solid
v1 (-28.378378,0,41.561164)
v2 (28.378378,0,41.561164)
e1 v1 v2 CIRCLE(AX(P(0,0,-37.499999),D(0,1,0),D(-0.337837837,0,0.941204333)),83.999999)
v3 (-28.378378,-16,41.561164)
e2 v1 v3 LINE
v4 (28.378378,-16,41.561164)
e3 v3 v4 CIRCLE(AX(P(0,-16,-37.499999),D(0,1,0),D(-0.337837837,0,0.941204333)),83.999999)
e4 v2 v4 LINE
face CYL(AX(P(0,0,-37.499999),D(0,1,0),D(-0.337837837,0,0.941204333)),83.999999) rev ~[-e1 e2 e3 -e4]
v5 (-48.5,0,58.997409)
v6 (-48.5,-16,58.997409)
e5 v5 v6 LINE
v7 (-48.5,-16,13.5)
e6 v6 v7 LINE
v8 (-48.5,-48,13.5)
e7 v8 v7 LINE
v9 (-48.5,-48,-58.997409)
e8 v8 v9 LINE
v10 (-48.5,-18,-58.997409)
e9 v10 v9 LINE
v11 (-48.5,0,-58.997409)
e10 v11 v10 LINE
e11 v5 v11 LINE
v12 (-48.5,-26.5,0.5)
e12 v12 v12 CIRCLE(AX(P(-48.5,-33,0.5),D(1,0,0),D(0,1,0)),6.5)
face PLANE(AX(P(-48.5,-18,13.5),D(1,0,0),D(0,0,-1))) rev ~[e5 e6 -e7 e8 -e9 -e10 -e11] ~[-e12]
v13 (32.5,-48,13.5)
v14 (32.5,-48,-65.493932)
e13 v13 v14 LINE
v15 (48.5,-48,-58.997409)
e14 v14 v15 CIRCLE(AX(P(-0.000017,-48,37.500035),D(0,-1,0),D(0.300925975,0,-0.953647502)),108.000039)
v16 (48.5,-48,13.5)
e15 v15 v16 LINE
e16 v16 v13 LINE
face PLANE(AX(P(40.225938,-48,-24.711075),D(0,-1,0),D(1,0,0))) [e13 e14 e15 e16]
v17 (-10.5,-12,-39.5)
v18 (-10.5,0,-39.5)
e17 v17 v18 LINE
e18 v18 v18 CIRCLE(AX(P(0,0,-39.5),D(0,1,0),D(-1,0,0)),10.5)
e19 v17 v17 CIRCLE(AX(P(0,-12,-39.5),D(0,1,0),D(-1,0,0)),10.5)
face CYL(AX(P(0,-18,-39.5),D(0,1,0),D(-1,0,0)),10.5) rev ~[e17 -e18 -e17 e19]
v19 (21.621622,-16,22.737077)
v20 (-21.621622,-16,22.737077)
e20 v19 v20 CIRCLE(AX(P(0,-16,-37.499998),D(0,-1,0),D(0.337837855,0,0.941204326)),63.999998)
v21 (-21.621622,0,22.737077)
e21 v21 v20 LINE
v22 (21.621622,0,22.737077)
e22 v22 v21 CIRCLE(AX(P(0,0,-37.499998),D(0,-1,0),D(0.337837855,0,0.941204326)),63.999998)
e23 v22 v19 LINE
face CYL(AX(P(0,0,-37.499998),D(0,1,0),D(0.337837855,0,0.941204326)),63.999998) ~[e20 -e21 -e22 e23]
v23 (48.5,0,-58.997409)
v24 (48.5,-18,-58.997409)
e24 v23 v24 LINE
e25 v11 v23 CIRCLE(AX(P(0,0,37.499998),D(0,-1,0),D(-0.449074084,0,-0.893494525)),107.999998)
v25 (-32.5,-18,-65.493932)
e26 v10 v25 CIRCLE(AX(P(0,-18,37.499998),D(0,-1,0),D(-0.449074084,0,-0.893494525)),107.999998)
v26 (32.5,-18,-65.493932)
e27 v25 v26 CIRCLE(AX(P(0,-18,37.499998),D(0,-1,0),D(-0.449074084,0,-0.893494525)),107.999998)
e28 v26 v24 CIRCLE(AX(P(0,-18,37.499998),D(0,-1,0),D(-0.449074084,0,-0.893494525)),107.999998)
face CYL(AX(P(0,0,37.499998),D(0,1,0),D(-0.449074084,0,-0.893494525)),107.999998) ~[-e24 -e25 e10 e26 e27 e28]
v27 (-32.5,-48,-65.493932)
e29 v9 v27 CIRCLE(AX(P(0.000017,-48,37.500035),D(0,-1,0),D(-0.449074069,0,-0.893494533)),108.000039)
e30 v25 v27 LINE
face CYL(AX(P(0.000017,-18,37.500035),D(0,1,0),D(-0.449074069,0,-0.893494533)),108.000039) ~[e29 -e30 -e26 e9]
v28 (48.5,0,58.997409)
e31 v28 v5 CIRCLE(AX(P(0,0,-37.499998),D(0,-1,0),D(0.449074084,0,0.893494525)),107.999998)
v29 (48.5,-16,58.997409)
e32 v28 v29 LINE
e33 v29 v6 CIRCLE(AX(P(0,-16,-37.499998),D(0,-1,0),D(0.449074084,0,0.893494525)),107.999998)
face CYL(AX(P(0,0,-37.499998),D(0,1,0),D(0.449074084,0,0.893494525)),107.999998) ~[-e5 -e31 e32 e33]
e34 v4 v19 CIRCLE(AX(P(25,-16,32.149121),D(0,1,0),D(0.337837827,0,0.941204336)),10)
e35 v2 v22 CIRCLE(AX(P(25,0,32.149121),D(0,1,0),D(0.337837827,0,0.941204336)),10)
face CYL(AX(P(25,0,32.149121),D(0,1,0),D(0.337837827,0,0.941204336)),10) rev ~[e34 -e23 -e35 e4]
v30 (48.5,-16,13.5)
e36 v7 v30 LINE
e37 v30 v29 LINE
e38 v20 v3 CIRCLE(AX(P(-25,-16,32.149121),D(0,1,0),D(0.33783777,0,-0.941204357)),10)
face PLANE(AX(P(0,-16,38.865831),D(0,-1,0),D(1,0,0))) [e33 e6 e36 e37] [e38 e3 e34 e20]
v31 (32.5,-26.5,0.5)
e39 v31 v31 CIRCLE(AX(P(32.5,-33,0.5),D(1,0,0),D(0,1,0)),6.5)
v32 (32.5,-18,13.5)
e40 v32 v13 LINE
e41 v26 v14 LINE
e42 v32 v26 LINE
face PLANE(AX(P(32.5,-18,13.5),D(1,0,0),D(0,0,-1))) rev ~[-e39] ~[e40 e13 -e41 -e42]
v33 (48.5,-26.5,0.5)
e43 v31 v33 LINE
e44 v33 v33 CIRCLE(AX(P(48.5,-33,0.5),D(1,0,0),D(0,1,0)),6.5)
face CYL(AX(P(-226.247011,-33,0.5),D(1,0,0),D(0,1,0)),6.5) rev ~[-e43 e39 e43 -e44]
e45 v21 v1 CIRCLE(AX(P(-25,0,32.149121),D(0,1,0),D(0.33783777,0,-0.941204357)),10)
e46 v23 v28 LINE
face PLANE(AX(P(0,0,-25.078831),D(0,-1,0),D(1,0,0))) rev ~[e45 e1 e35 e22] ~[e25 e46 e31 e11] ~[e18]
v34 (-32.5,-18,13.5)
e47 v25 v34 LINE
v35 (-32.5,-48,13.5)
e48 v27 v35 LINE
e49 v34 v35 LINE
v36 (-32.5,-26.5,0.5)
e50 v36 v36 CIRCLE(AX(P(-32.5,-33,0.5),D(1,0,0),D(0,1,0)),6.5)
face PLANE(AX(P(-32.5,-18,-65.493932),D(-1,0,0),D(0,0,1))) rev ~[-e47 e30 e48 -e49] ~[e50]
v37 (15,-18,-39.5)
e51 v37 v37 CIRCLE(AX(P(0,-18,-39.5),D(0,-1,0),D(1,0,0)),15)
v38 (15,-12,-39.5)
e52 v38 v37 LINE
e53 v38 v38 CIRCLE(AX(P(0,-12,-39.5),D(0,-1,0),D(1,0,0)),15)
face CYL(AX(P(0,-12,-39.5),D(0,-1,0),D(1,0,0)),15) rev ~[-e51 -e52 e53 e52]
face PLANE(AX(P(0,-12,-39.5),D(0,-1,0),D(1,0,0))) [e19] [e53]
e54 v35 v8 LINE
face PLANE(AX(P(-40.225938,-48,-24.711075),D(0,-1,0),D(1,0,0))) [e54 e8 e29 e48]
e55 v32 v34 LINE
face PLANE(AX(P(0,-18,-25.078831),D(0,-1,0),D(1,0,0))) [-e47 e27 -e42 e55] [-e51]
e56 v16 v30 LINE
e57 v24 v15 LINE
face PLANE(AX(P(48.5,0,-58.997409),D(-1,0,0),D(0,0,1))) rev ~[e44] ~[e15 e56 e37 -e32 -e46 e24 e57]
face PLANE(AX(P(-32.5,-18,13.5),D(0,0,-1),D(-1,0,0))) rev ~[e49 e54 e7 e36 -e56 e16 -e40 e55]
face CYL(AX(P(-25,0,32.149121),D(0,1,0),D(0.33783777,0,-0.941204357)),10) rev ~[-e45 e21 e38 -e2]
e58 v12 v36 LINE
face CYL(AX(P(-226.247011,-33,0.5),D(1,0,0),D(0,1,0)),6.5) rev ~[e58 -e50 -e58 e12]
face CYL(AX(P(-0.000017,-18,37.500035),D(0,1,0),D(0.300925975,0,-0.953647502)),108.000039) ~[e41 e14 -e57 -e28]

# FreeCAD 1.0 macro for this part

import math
import FreeCAD as App
import Part
import Sketcher
from FreeCAD import Vector
Q = App.Units.Quantity

doc = App.newDocument("Part")
body = doc.addObject("PartDesign::Body", "Body")

# Sketch on XZ plane
sketch1 = body.newObject("Sketcher::SketchObject", "Sketch")
sketch1.AttachmentSupport = (doc.getObject("XZ_Plane"), [""])
sketch1.MapMode = "FlatFace"
sketch1.addGeometry(Part.LineSegment(Vector(-48, 14, 0), Vector(48, 14, 0)), False)
sketch1.addGeometry(Part.LineSegment(Vector(48, 14, 0), Vector(48, 59, 0)), False)
sketch1.addGeometry(Part.ArcOfCircle(Part.Circle(Vector(0, -37, 0), Vector(0, 0, 1), 108), math.radians(63), math.radians(117)), False)
sketch1.addGeometry(Part.LineSegment(Vector(-48, 59, 0), Vector(-48, 14, 0)), False)
sketch1.addGeometry(Part.ArcOfCircle(Part.Circle(Vector(-25, 32, 0), Vector(0, 0, 1), 10), math.radians(110), math.radians(290)), False)
sketch1.addGeometry(Part.ArcOfCircle(Part.Circle(Vector(0, -37, 0), Vector(0, 0, 1), 84), math.radians(70), math.radians(110)), False)
sketch1.addGeometry(Part.ArcOfCircle(Part.Circle(Vector(25, 32, 0), Vector(0, 0, 1), 10), math.radians(-110), math.radians(70)), False)
sketch1.addGeometry(Part.ArcOfCircle(Part.Circle(Vector(0, -37, 0), Vector(0, 0, 1), 64), math.radians(70), math.radians(110)), False)
sketch1.addConstraint(Sketcher.Constraint("Coincident", 0, 2, 1, 1))
sketch1.addConstraint(Sketcher.Constraint("Coincident", 1, 2, 2, 1))
sketch1.addConstraint(Sketcher.Constraint("Coincident", 2, 2, 3, 1))
sketch1.addConstraint(Sketcher.Constraint("Coincident", 3, 2, 0, 1))
sketch1.addConstraint(Sketcher.Constraint("Tangent", 4, 1, 5, 2))
sketch1.addConstraint(Sketcher.Constraint("Tangent", 5, 1, 6, 2))
sketch1.addConstraint(Sketcher.Constraint("Tangent", 6, 1, 7, 1))
sketch1.addConstraint(Sketcher.Constraint("Tangent", 7, 2, 4, 2))
sketch1.addConstraint(Sketcher.Constraint("Horizontal", 0))
sketch1.addConstraint(Sketcher.Constraint("Vertical", 1))
sketch1.addConstraint(Sketcher.Constraint("Vertical", 3))
sketch1.addConstraint(Sketcher.Constraint("Coincident", 5, 3, 2, 3))
sketch1.addConstraint(Sketcher.Constraint("Coincident", 7, 3, 2, 3))
sketch1.addConstraint(Sketcher.Constraint("Symmetric", 4, 3, 6, 3, -2))
sketch1.addConstraint(Sketcher.Constraint("Horizontal", 1, 2, 2, 2))
sketch1.addConstraint(Sketcher.Constraint("Radius", 4, Q("10 mm")))
sketch1.addConstraint(Sketcher.Constraint("Radius", 5, Q("83.999999 mm")))
sketch1.addConstraint(Sketcher.Constraint("DistanceX", 0, 1, 0, 2, Q("97 mm")))
sketch1.addConstraint(Sketcher.Constraint("DistanceX", 4, 3, -1, 1, Q("25 mm")))
sketch1.addConstraint(Sketcher.Constraint("DistanceY", 5, 3, 0, 2, Q("50.999999 mm")))
sketch1.addConstraint(Sketcher.Constraint("DistanceY", 5, 3, -1, 1, Q("37.499999 mm")))
sketch1.addConstraint(Sketcher.Constraint("Radius", 2, Q("107.999998 mm")))
pad1 = body.newObject("PartDesign::Pad", "Pad")
pad1.Profile = sketch1
pad1.Length = 16

# Sketch on XZ plane
sketch2 = body.newObject("Sketcher::SketchObject", "Sketch001")
sketch2.AttachmentSupport = (doc.getObject("XZ_Plane"), [""])
sketch2.MapMode = "FlatFace"
sketch2.addGeometry(Part.ArcOfCircle(Part.Circle(Vector(0, 37, 0), Vector(0, 0, 1), 108), math.radians(-117), math.radians(-63)), False)
sketch2.addGeometry(Part.LineSegment(Vector(48, -59, 0), Vector(48, 14, 0)), False)
sketch2.addGeometry(Part.LineSegment(Vector(48, 14, 0), Vector(-48, 14, 0)), False)
sketch2.addGeometry(Part.LineSegment(Vector(-48, 14, 0), Vector(-48, -59, 0)), False)
sketch2.addConstraint(Sketcher.Constraint("Coincident", 0, 2, 1, 1))
sketch2.addConstraint(Sketcher.Constraint("Coincident", 1, 2, 2, 1))
sketch2.addConstraint(Sketcher.Constraint("Coincident", 2, 2, 3, 1))
sketch2.addConstraint(Sketcher.Constraint("Coincident", 3, 2, 0, 1))
sketch2.addConstraint(Sketcher.Constraint("Vertical", 1))
sketch2.addConstraint(Sketcher.Constraint("Horizontal", 2))
sketch2.addConstraint(Sketcher.Constraint("Vertical", 3))
sketch2.addConstraint(Sketcher.Constraint("Symmetric", 0, 2, 3, 2, -2))
sketch2.addConstraint(Sketcher.Constraint("DistanceX", 2, 2, 2, 1, Q("97 mm")))
sketch2.addConstraint(Sketcher.Constraint("DistanceY", -1, 1, 1, 2, Q("13.5 mm")))
sketch2.addConstraint(Sketcher.Constraint("Radius", 0, Q("107.999998 mm")))
sketch2.addConstraint(Sketcher.Constraint("DistanceY", 1, 1, 1, 2, Q("72.497409 mm")))
pad2 = body.newObject("PartDesign::Pad", "Pad001")
pad2.Profile = sketch2
pad2.Length = 18

# Sketch on XZ plane
sketch3 = body.newObject("Sketcher::SketchObject", "Sketch002")
sketch3.AttachmentSupport = (doc.getObject("XZ_Plane"), [""])
sketch3.MapMode = "FlatFace"
sketch3.AttachmentOffset = App.Placement(Vector(0, 0, 18), App.Rotation())
sketch3.addGeometry(Part.Circle(Vector(0, -40, 0), Vector(0, 0, 1), 10), False)
sketch3.addConstraint(Sketcher.Constraint("PointOnObject", 0, 3, -2))
sketch3.addConstraint(Sketcher.Constraint("Diameter", 0, Q("21 mm")))
sketch3.addConstraint(Sketcher.Constraint("DistanceY", 0, 3, -1, 1, Q("39.5 mm")))
doc.recompute()
hole = body.newObject("PartDesign::Hole", "Hole")
hole.Profile = sketch3
hole.ThreadType = "None"
hole.Diameter = 21
hole.DepthType = "ThroughAll"
hole.HoleCutType = "Counterbore"
hole.HoleCutDiameter = 30
hole.HoleCutDepth = 6

# Sketch on XZ plane
sketch4 = body.newObject("Sketcher::SketchObject", "Sketch003")
sketch4.AttachmentSupport = (doc.getObject("XZ_Plane"), [""])
sketch4.MapMode = "FlatFace"
sketch4.AttachmentOffset = App.Placement(Vector(0, 0, 18), App.Rotation())
sketch4.addGeometry(Part.LineSegment(Vector(-48.5, 13.5, 0), Vector(-48.5, -58.997409, 0)), False)
sketch4.addGeometry(Part.ArcOfCircle(Part.Circle(Vector(0.000017, 37.500035, 0), Vector(0, 0, 1), 108.000039), math.radians(-116.684293), math.radians(-107.513228)), False)
sketch4.addGeometry(Part.LineSegment(Vector(-32.5, -65.493932, 0), Vector(-32.5, 13.5, 0)), False)
sketch4.addGeometry(Part.LineSegment(Vector(-32.5, 13.5, 0), Vector(-48.5, 13.5, 0)), False)
sketch4.addGeometry(Part.ArcOfCircle(Part.Circle(Vector(-0.000017, 37.500035, 0), Vector(0, 0, 1), 108.000039), math.radians(-72.486772), math.radians(-63.315707)), False)
sketch4.addGeometry(Part.LineSegment(Vector(48.5, -58.997409, 0), Vector(48.5, 13.5, 0)), False)
sketch4.addGeometry(Part.LineSegment(Vector(48.5, 13.5, 0), Vector(32.5, 13.5, 0)), False)
sketch4.addGeometry(Part.LineSegment(Vector(32.5, 13.5, 0), Vector(32.5, -65.493932, 0)), False)
sketch4.addConstraint(Sketcher.Constraint("Coincident", 0, 2, 1, 1))
sketch4.addConstraint(Sketcher.Constraint("Coincident", 1, 2, 2, 1))
sketch4.addConstraint(Sketcher.Constraint("Coincident", 2, 2, 3, 1))
sketch4.addConstraint(Sketcher.Constraint("Coincident", 3, 2, 0, 1))
sketch4.addConstraint(Sketcher.Constraint("Coincident", 4, 2, 5, 1))
sketch4.addConstraint(Sketcher.Constraint("Coincident", 5, 2, 6, 1))
sketch4.addConstraint(Sketcher.Constraint("Coincident", 6, 2, 7, 1))
sketch4.addConstraint(Sketcher.Constraint("Coincident", 7, 2, 4, 1))
sketch4.addConstraint(Sketcher.Constraint("Vertical", 0))
sketch4.addConstraint(Sketcher.Constraint("Vertical", 2))
sketch4.addConstraint(Sketcher.Constraint("Horizontal", 3))
sketch4.addConstraint(Sketcher.Constraint("Vertical", 5))
sketch4.addConstraint(Sketcher.Constraint("Horizontal", 6))
sketch4.addConstraint(Sketcher.Constraint("Vertical", 7))
sketch4.addConstraint(Sketcher.Constraint("Equal", 1, 4))
sketch4.addConstraint(Sketcher.Constraint("Symmetric", 1, 3, 4, 3, -2))
sketch4.addConstraint(Sketcher.Constraint("Symmetric", 3, 2, 5, 2, -2))
sketch4.addConstraint(Sketcher.Constraint("Horizontal", 1, 2, 7, 2))
sketch4.addConstraint(Sketcher.Constraint("DistanceX", 3, 2, 3, 1, Q("16 mm")))
sketch4.addConstraint(Sketcher.Constraint("DistanceX", 1, 2, 4, 2, Q("81 mm")))
sketch4.addConstraint(Sketcher.Constraint("DistanceY", -1, 1, 2, 2, Q("13.5 mm")))
sketch4.addConstraint(Sketcher.Constraint("Radius", 1, Q("108.000039 mm")))
sketch4.addConstraint(Sketcher.Constraint("DistanceY", 0, 2, 0, 1, Q("72.497409 mm")))
sketch4.addConstraint(Sketcher.Constraint("DistanceY", 2, 1, 2, 2, Q("78.993932 mm")))
pad3 = body.newObject("PartDesign::Pad", "Pad002")
pad3.Profile = sketch4
pad3.Length = 30

# Sketch on YZ plane
sketch5 = body.newObject("Sketcher::SketchObject", "Sketch004")
sketch5.AttachmentSupport = (doc.getObject("YZ_Plane"), [""])
sketch5.MapMode = "FlatFace"
sketch5.AttachmentOffset = App.Placement(Vector(0, 0, -48.5), App.Rotation())
sketch5.addGeometry(Part.Circle(Vector(-33, 0, 0), Vector(0, 0, 1), 6), False)
sketch5.addConstraint(Sketcher.Constraint("Diameter", 0, Q("13 mm")))
sketch5.addConstraint(Sketcher.Constraint("DistanceX", 0, 3, -1, 1, Q("33 mm")))
sketch5.addConstraint(Sketcher.Constraint("DistanceY", -1, 1, 0, 3, Q("0.5 mm")))
doc.recompute()
hole2 = body.newObject("PartDesign::Hole", "Hole001")
hole2.Profile = sketch5
hole2.ThreadType = "None"
hole2.Diameter = 13
hole2.DepthType = "ThroughAll"
hole2.Reversed = True

doc.recompute()
